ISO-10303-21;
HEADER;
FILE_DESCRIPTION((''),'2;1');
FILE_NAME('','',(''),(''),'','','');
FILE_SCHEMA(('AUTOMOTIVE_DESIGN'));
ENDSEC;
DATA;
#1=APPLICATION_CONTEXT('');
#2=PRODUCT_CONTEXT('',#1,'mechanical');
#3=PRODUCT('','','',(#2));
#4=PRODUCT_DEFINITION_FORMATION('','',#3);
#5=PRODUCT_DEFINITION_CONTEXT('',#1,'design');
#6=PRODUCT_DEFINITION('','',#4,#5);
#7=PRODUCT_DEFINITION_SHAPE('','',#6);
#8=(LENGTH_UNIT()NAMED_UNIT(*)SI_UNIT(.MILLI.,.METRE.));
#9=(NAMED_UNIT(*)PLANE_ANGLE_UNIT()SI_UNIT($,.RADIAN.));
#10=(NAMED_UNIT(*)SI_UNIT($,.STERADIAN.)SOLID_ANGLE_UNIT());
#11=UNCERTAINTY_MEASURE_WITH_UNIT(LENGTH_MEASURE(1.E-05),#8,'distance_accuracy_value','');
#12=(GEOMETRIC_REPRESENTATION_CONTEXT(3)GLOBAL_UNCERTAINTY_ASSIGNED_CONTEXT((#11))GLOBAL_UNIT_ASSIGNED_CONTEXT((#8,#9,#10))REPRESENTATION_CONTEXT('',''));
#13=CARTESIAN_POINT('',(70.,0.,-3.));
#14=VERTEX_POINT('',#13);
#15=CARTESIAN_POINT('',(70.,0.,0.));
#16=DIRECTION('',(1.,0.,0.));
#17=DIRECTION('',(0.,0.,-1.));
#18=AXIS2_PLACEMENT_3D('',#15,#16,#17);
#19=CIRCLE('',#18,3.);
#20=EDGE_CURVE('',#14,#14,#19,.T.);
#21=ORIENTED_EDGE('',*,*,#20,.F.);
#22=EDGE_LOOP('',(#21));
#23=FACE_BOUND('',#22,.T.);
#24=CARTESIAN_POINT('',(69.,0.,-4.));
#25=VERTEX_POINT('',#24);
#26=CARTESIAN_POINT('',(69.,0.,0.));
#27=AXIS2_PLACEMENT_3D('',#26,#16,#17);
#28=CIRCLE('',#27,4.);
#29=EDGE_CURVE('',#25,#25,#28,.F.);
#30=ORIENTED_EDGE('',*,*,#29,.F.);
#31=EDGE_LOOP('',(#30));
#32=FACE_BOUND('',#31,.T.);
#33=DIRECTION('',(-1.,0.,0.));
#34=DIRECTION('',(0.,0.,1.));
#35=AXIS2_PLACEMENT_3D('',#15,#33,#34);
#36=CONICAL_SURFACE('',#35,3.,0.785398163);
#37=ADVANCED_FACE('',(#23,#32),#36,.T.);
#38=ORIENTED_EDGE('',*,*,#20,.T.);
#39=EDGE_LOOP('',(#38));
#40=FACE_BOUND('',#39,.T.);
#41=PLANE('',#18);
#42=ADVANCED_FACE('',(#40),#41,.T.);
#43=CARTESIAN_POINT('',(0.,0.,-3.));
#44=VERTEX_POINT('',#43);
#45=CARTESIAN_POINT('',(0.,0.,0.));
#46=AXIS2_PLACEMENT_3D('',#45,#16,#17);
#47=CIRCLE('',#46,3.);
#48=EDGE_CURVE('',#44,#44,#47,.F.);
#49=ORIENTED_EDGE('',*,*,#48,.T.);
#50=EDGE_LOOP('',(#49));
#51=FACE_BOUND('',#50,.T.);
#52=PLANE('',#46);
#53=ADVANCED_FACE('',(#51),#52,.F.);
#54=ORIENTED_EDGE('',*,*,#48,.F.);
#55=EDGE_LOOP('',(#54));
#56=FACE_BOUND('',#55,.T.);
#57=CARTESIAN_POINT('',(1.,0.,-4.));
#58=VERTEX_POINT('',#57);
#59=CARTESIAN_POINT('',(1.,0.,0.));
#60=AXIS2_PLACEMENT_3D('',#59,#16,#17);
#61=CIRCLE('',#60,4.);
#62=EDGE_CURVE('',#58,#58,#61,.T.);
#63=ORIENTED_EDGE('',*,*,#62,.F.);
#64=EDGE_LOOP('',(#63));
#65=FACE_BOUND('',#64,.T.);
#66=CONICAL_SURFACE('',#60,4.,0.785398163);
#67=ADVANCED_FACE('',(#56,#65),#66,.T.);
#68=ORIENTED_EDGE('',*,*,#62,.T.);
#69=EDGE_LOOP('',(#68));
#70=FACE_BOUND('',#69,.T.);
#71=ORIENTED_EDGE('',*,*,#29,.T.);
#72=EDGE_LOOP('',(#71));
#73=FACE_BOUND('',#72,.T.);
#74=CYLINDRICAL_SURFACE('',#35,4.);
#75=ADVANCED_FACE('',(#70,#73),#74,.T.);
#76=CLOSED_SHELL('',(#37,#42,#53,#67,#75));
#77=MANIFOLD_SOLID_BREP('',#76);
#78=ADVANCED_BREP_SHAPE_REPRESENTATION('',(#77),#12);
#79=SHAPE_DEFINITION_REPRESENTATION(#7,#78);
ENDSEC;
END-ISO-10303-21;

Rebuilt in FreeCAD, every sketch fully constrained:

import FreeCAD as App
import Part
import Sketcher
Q = App.Units.Quantity


def edges_at(feature, points):
    """Names of the edges that pass closest to the given points."""
    edges = feature.Shape.Edges
    near = lambda p: min(range(len(edges)), key=lambda i: edges[i].distToShape(Part.Vertex(*p))[0])
    return sorted({f"Edge{near(p) + 1}" for p in points})

doc = App.newDocument("Part")
body = doc.addObject("PartDesign::Body", "Body")

# Sketch on YZ plane
sketch1 = body.newObject("Sketcher::SketchObject", "Sketch")
sketch1.AttachmentSupport = (doc.getObject("YZ_Plane"), [""])
sketch1.MapMode = "FlatFace"
sketch1.addGeometry(Part.Circle(App.Vector(0, 0, 0), App.Vector(0, 0, 1), 4), False)
sketch1.addConstraint([
    Sketcher.Constraint("Coincident", 0, 3, -1, 1),
    Sketcher.Constraint("Diameter", 0, Q("8 mm")),
])
pad1 = body.newObject("PartDesign::Pad", "Pad")
pad1.Profile = sketch1
pad1.Length = 70
doc.recompute()

chamfer = body.newObject("PartDesign::Chamfer", "Chamfer")
chamfer.Base = (pad1, edges_at(pad1, [(0, 0, 4), (70, 0, 4)]))
chamfer.Size = 1

doc.recompute()
